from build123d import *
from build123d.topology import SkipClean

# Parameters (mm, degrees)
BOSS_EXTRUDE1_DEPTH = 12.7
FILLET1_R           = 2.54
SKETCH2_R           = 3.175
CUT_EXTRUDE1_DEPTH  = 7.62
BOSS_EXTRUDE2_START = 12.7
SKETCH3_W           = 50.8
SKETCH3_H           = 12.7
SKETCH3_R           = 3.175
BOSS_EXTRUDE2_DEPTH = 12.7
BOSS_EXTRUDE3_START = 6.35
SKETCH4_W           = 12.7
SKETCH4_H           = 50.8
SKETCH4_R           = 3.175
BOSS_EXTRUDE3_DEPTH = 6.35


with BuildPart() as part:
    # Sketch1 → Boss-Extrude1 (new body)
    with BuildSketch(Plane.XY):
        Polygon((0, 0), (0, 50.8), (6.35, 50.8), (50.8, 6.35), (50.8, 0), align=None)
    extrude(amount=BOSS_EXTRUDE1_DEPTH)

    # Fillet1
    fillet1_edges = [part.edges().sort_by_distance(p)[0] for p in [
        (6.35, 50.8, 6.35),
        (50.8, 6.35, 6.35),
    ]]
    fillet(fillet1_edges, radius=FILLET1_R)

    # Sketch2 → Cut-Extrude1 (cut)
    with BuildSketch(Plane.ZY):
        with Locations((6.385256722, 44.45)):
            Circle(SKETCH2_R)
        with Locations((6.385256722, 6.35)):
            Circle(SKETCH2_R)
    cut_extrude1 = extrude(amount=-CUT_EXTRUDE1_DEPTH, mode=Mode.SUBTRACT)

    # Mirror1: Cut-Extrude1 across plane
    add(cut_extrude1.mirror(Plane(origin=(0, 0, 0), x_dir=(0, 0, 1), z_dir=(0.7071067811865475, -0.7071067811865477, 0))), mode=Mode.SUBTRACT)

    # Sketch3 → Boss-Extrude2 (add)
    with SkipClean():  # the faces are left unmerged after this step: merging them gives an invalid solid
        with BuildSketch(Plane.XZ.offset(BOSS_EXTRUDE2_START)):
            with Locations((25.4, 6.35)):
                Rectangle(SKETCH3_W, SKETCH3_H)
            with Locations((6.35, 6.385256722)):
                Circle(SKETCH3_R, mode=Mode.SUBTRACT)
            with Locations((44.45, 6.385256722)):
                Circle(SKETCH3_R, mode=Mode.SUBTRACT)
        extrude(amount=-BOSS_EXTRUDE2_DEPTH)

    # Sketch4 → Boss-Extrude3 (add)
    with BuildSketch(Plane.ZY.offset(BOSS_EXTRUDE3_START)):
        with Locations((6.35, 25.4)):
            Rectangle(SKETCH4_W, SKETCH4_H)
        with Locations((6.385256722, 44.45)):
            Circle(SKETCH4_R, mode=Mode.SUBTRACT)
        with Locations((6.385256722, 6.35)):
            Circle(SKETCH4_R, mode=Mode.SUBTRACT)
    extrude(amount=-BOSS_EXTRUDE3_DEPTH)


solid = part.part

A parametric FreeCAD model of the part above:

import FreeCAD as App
import Part
import Sketcher
from FreeCAD import Vector
Q = App.Units.Quantity


def edges_at(feature, points):
    """Names of the edges that pass closest to the given points."""
    edges = feature.Shape.Edges
    near = lambda p: min(range(len(edges)), key=lambda i: edges[i].distToShape(Part.Vertex(*p))[0])
    return sorted({f"Edge{near(p) + 1}" for p in points})

doc = App.newDocument("Part")
body = doc.addObject("PartDesign::Body", "Body")

sketch1 = body.newObject("Sketcher::SketchObject", "Sketch")
sketch1.AttachmentSupport = (doc.getObject("XY_Plane"), [""])
sketch1.MapMode = "FlatFace"
sketch1.addGeometry([
    Part.LineSegment(Vector(0, 50.8, 0), Vector(0, 0, 0)),
    Part.LineSegment(Vector(0, 0, 0), Vector(50.8, 0, 0)),
    Part.LineSegment(Vector(50.8, 0, 0), Vector(50.8, 6.35, 0)),
    Part.LineSegment(Vector(50.8, 6.35, 0), Vector(6.35, 50.8, 0)),
    Part.LineSegment(Vector(6.35, 50.8, 0), Vector(0, 50.8, 0)),
], False)
sketch1.addConstraint([
    Sketcher.Constraint("Coincident", 0, 2, 1, 1),
    Sketcher.Constraint("Coincident", 1, 2, 2, 1),
    Sketcher.Constraint("Coincident", 2, 2, 3, 1),
    Sketcher.Constraint("Coincident", 3, 2, 4, 1),
    Sketcher.Constraint("Coincident", 4, 2, 0, 1),
    Sketcher.Constraint("Vertical", 0),
    Sketcher.Constraint("Horizontal", 1),
    Sketcher.Constraint("Vertical", 2),
    Sketcher.Constraint("Horizontal", 4),
    Sketcher.Constraint("Coincident", 0, 2, -1, 1),
    Sketcher.Constraint("Equal", 1, 0),
    Sketcher.Constraint("Equal", 4, 2),
    Sketcher.Constraint("DistanceX", 1, 1, 1, 2, Q("2 in")),
    Sketcher.Constraint("DistanceX", 4, 2, 4, 1, Q("0.25 in")),
])
pad1 = body.newObject("PartDesign::Pad", "Pad")
pad1.Profile = sketch1
pad1.Length = Q("0.5 in")
doc.recompute()

fillet = body.newObject("PartDesign::Fillet", "Fillet")
fillet.Base = (pad1, edges_at(pad1, [(6.35, 50.8, 6.35), (50.8, 6.35, 6.35)]))
fillet.Radius = Q("0.1 in")

sketch2 = body.newObject("Sketcher::SketchObject", "Sketch001")
sketch2.AttachmentSupport = (doc.getObject("YZ_Plane"), [""])
sketch2.MapMode = "FlatFace"
sketch2.addGeometry([
    Part.Circle(Vector(44.45, 6.385257, 0), Vector(0, 0, 1), 3.175),
    Part.Circle(Vector(6.35, 6.385257, 0), Vector(0, 0, 1), 3.175),
], False)
sketch2.addConstraint([
    Sketcher.Constraint("Equal", 0, 1),
    Sketcher.Constraint("Horizontal", 0, 3, 1, 3),
    Sketcher.Constraint("Diameter", 0, Q("0.25 in")),
    Sketcher.Constraint("DistanceX", 1, 3, 0, 3, Q("1.5 in")),
    Sketcher.Constraint("DistanceX", -1, 1, 0, 3, Q("1.75 in")),
    Sketcher.Constraint("DistanceY", -1, 1, 0, 3, Q("6.385257 mm")),
])
pocket1 = body.newObject("PartDesign::Pocket", "Pocket")
pocket1.Profile = sketch2
pocket1.Length = Q("0.3 in")
pocket1.Reversed = True
doc.recompute()

datumplane = body.newObject("PartDesign::Plane", "DatumPlane")
datumplane.Placement = App.Placement(Vector(0, 0, 0), App.Rotation(Vector(-0.707106781, -0.707106781, 0), Vector(0, 0, -1), Vector(0.707106781, -0.707106781, 0), "ZXY"))
mirrored = body.newObject("PartDesign::Mirrored", "Mirrored")
mirrored.Originals = [pocket1]
mirrored.MirrorPlane = (datumplane, [""])
body.Tip = mirrored

sketch3 = body.newObject("Sketcher::SketchObject", "Sketch002")
sketch3.AttachmentSupport = (doc.getObject("XZ_Plane"), [""])
sketch3.MapMode = "FlatFace"
sketch3.AttachmentOffset = App.Placement(Vector(0, 0, 0.5 * 25.4), App.Rotation())
sketch3.addGeometry([
    Part.LineSegment(Vector(0, 12.7, 0), Vector(0, 0, 0)),
    Part.LineSegment(Vector(0, 0, 0), Vector(50.8, 0, 0)),
    Part.LineSegment(Vector(50.8, 0, 0), Vector(50.8, 12.7, 0)),
    Part.LineSegment(Vector(50.8, 12.7, 0), Vector(0, 12.7, 0)),
    Part.Circle(Vector(6.35, 6.385257, 0), Vector(0, 0, 1), 3.175),
    Part.Circle(Vector(44.45, 6.385257, 0), Vector(0, 0, 1), 3.175),
], False)
sketch3.addConstraint([
    Sketcher.Constraint("Coincident", 0, 2, 1, 1),
    Sketcher.Constraint("Coincident", 1, 2, 2, 1),
    Sketcher.Constraint("Coincident", 2, 2, 3, 1),
    Sketcher.Constraint("Coincident", 3, 2, 0, 1),
    Sketcher.Constraint("Vertical", 0),
    Sketcher.Constraint("Horizontal", 1),
    Sketcher.Constraint("Vertical", 2),
    Sketcher.Constraint("Horizontal", 3),
    Sketcher.Constraint("Coincident", 0, 2, -1, 1),
    Sketcher.Constraint("Equal", 4, 5),
    Sketcher.Constraint("Horizontal", 4, 3, 5, 3),
    Sketcher.Constraint("Diameter", 4, Q("0.25 in")),
    Sketcher.Constraint("DistanceX", 1, 1, 1, 2, Q("2 in")),
    Sketcher.Constraint("DistanceY", 0, 2, 0, 1, Q("0.5 in")),
    Sketcher.Constraint("DistanceX", 4, 3, 5, 3, Q("1.5 in")),
    Sketcher.Constraint("DistanceX", -1, 1, 4, 3, Q("0.25 in")),
    Sketcher.Constraint("DistanceY", -1, 1, 4, 3, Q("6.385257 mm")),
])
pad2 = body.newObject("PartDesign::Pad", "Pad001")
pad2.Profile = sketch3
pad2.Length = Q("0.5 in")
pad2.Reversed = True

sketch4 = body.newObject("Sketcher::SketchObject", "Sketch003")
sketch4.AttachmentSupport = (doc.getObject("YZ_Plane"), [""])
sketch4.MapMode = "FlatFace"
sketch4.AttachmentOffset = App.Placement(Vector(0, 0, -0.25 * 25.4), App.Rotation())
sketch4.addGeometry([
    Part.LineSegment(Vector(50.8, 0, 0), Vector(0, 0, 0)),
    Part.LineSegment(Vector(0, 0, 0), Vector(0, 12.7, 0)),
    Part.LineSegment(Vector(0, 12.7, 0), Vector(50.8, 12.7, 0)),
    Part.LineSegment(Vector(50.8, 12.7, 0), Vector(50.8, 0, 0)),
    Part.Circle(Vector(6.35, 6.385257, 0), Vector(0, 0, 1), 3.175),
    Part.Circle(Vector(44.45, 6.385257, 0), Vector(0, 0, 1), 3.175),
], False)
sketch4.addConstraint([
    Sketcher.Constraint("Coincident", 0, 2, 1, 1),
    Sketcher.Constraint("Coincident", 1, 2, 2, 1),
    Sketcher.Constraint("Coincident", 2, 2, 3, 1),
    Sketcher.Constraint("Coincident", 3, 2, 0, 1),
    Sketcher.Constraint("Horizontal", 0),
    Sketcher.Constraint("Vertical", 1),
    Sketcher.Constraint("Horizontal", 2),
    Sketcher.Constraint("Vertical", 3),
    Sketcher.Constraint("Coincident", 0, 2, -1, 1),
    Sketcher.Constraint("Equal", 4, 5),
    Sketcher.Constraint("Horizontal", 4, 3, 5, 3),
    Sketcher.Constraint("Diameter", 4, Q("0.25 in")),
    Sketcher.Constraint("DistanceX", 0, 2, 0, 1, Q("2 in")),
    Sketcher.Constraint("DistanceY", 1, 1, 1, 2, Q("0.5 in")),
    Sketcher.Constraint("DistanceX", 4, 3, 5, 3, Q("1.5 in")),
    Sketcher.Constraint("DistanceX", -1, 1, 4, 3, Q("0.25 in")),
    Sketcher.Constraint("DistanceY", -1, 1, 4, 3, Q("6.385257 mm")),
])
pad3 = body.newObject("PartDesign::Pad", "Pad002")
pad3.Profile = sketch4
pad3.Length = Q("0.25 in")

doc.recompute()
